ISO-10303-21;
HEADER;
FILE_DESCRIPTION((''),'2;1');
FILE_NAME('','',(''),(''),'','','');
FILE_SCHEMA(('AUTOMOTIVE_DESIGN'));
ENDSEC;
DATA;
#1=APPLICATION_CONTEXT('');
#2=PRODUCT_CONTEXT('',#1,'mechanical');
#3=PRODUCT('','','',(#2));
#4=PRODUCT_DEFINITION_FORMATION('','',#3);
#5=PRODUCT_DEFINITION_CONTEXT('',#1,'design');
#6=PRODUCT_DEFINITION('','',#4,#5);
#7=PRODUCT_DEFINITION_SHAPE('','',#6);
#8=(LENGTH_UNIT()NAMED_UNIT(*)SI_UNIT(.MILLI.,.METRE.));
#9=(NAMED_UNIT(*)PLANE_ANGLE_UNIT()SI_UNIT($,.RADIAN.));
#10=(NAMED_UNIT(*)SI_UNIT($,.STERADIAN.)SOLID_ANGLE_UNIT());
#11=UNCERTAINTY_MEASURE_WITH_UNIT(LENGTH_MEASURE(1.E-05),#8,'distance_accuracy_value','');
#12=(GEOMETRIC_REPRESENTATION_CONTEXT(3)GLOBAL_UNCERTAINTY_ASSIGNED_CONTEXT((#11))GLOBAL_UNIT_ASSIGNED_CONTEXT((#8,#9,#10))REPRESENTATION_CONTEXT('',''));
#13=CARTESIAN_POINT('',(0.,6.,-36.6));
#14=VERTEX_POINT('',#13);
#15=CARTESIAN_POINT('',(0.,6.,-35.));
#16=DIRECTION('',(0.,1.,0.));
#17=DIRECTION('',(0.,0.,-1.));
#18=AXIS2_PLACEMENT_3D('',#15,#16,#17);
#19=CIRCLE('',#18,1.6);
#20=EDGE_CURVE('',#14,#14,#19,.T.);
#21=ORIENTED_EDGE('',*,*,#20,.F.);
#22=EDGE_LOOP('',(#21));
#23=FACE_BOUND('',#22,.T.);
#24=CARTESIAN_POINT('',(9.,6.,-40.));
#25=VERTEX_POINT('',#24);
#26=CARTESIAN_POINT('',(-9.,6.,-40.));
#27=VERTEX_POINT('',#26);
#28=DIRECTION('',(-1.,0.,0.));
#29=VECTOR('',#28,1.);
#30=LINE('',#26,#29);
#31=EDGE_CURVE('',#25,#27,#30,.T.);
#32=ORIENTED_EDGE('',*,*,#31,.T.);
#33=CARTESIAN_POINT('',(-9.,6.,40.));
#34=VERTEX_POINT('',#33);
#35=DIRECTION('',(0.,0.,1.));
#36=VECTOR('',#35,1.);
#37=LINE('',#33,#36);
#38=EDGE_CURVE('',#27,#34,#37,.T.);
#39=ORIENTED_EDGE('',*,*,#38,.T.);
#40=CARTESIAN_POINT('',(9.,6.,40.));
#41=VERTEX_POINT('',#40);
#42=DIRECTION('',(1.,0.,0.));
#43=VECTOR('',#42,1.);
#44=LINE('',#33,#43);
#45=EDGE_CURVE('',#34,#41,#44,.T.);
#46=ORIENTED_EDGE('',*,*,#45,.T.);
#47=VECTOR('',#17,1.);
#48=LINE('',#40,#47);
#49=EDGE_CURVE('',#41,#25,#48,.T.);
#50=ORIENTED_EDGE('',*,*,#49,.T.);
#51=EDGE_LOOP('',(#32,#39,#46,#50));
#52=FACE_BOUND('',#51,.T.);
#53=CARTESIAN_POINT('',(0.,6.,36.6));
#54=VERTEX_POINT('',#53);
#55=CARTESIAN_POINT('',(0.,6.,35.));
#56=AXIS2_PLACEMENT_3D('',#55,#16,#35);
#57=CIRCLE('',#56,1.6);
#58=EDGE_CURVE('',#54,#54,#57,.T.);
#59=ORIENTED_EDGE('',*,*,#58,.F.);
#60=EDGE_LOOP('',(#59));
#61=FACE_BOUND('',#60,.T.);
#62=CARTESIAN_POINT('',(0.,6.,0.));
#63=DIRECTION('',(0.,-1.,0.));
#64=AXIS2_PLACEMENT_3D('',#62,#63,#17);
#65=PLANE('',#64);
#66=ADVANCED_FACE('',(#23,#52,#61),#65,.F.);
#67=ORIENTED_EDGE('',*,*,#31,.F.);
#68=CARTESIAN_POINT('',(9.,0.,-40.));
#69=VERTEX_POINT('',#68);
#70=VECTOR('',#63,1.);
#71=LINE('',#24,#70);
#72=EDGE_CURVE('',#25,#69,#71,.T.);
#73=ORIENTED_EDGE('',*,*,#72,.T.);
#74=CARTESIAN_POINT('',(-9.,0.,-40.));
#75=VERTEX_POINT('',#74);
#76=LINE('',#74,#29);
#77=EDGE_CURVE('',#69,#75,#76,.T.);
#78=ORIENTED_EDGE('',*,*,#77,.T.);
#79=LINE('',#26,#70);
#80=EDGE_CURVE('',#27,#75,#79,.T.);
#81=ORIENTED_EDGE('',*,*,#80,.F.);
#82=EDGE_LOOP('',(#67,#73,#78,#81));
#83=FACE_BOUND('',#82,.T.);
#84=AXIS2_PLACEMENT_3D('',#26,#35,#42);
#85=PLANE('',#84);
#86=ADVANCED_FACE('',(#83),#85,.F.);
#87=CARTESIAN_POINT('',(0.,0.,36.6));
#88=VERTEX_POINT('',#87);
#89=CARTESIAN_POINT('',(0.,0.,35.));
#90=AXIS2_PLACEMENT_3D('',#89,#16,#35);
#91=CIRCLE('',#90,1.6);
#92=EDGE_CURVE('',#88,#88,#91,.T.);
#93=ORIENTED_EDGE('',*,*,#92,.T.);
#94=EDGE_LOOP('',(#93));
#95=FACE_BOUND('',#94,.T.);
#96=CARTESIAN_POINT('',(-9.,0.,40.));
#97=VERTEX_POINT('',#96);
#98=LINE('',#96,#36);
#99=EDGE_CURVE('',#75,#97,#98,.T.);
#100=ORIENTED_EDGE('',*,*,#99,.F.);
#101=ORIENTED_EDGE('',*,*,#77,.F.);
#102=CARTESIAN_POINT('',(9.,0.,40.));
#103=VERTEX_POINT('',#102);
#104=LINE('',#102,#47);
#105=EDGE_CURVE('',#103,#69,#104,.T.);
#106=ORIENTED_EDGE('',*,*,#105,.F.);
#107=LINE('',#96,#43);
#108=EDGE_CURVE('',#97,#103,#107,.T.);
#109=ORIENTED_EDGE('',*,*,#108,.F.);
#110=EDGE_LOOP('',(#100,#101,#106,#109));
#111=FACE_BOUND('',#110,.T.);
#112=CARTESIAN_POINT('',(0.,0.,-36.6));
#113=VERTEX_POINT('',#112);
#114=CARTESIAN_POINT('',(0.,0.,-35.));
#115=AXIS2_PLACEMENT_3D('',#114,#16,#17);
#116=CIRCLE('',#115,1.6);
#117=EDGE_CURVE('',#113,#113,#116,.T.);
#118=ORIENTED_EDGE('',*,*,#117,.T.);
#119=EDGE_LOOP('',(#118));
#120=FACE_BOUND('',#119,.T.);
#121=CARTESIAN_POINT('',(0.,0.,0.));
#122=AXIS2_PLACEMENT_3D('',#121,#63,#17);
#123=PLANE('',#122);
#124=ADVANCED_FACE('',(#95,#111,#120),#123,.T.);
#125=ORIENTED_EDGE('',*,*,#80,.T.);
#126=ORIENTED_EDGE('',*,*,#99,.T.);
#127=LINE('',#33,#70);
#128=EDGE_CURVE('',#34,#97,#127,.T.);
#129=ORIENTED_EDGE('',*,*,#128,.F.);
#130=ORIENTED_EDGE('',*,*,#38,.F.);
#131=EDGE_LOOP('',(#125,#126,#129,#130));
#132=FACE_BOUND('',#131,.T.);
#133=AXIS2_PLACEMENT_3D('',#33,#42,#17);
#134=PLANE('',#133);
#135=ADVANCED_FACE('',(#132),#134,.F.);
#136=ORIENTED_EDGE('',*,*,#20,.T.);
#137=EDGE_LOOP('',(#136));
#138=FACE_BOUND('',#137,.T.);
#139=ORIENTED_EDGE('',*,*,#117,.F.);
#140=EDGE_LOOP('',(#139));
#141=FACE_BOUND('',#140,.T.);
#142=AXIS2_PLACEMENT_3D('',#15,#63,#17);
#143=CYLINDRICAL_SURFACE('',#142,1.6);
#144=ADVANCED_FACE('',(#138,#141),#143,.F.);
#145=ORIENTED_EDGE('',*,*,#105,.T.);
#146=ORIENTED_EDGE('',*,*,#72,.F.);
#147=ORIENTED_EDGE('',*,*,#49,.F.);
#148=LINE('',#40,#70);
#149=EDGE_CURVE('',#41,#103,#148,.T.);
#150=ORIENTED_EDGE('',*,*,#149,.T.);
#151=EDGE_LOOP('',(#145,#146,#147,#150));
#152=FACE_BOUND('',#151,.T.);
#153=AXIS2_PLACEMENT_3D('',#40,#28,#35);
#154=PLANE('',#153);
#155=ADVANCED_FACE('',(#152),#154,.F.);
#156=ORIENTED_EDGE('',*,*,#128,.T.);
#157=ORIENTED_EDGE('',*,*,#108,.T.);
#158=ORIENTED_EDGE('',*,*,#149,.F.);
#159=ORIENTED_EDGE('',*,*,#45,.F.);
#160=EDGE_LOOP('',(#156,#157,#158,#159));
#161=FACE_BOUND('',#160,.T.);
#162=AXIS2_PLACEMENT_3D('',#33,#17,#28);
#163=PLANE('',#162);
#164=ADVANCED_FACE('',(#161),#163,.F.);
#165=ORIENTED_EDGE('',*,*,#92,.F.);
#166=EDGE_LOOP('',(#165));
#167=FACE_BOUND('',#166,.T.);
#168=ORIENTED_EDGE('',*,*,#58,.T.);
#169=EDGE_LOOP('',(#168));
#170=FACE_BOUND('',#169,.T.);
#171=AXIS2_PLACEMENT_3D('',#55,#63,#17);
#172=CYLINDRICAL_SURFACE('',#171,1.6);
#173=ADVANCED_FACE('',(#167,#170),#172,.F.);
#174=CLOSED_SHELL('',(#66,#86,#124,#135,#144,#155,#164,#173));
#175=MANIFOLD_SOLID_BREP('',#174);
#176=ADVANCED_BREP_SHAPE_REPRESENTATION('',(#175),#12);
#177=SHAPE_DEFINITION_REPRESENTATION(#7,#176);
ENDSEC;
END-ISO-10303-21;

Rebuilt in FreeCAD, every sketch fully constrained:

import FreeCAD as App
import Part
import Sketcher
from FreeCAD import Vector

doc = App.newDocument("Part")
body = doc.addObject("PartDesign::Body", "Body")

# Sketch on XZ plane
sketch1 = body.newObject("Sketcher::SketchObject", "Sketch")
sketch1.AttachmentSupport = (doc.getObject("XZ_Plane"), [""])
sketch1.MapMode = "FlatFace"
sketch1.addGeometry([
    Part.LineSegment(Vector(-9, -40, 0), Vector(-9, 40, 0)),  # 0
    Part.LineSegment(Vector(-9, 40, 0), Vector(9, 40, 0)),  # 1
    Part.LineSegment(Vector(9, 40, 0), Vector(9, -40, 0)),  # 2
    Part.LineSegment(Vector(9, -40, 0), Vector(-9, -40, 0)),  # 3
    Part.Circle(Vector(0, 35, 0), Vector(0, 0, 1), 1.6),  # 4
    Part.Circle(Vector(0, -35, 0), Vector(0, 0, 1), 1.6),  # 5
], False)
sketch1.addConstraint([
    Sketcher.Constraint("Coincident", 0, 2, 1, 1),
    Sketcher.Constraint("Coincident", 1, 2, 2, 1),
    Sketcher.Constraint("Coincident", 2, 2, 3, 1),
    Sketcher.Constraint("Coincident", 3, 2, 0, 1),
    Sketcher.Constraint("Vertical", 0),
    Sketcher.Constraint("Horizontal", 1),
    Sketcher.Constraint("Vertical", 2),
    Sketcher.Constraint("Horizontal", 3),
    Sketcher.Constraint("Equal", 4, 5),
    Sketcher.Constraint("Symmetric", 4, 3, 5, 3, -1, 1),
    Sketcher.Constraint("Symmetric", 0, 2, 2, 2, -1, 1),
    Sketcher.Constraint("PointOnObject", 4, 3, -2),
    Sketcher.Constraint("Diameter", 4, 3.2),
    Sketcher.Constraint("DistanceX", 1, 1, 1, 2, 18.0),
    Sketcher.Constraint("DistanceY", 0, 1, 0, 2, 80.0),
    Sketcher.Constraint("DistanceY", -1, 1, 4, 3, 35.0),
])
pad1 = body.newObject("PartDesign::Pad", "Pad")
pad1.Profile = sketch1
pad1.Length = 6
pad1.Reversed = True

doc.recompute()
